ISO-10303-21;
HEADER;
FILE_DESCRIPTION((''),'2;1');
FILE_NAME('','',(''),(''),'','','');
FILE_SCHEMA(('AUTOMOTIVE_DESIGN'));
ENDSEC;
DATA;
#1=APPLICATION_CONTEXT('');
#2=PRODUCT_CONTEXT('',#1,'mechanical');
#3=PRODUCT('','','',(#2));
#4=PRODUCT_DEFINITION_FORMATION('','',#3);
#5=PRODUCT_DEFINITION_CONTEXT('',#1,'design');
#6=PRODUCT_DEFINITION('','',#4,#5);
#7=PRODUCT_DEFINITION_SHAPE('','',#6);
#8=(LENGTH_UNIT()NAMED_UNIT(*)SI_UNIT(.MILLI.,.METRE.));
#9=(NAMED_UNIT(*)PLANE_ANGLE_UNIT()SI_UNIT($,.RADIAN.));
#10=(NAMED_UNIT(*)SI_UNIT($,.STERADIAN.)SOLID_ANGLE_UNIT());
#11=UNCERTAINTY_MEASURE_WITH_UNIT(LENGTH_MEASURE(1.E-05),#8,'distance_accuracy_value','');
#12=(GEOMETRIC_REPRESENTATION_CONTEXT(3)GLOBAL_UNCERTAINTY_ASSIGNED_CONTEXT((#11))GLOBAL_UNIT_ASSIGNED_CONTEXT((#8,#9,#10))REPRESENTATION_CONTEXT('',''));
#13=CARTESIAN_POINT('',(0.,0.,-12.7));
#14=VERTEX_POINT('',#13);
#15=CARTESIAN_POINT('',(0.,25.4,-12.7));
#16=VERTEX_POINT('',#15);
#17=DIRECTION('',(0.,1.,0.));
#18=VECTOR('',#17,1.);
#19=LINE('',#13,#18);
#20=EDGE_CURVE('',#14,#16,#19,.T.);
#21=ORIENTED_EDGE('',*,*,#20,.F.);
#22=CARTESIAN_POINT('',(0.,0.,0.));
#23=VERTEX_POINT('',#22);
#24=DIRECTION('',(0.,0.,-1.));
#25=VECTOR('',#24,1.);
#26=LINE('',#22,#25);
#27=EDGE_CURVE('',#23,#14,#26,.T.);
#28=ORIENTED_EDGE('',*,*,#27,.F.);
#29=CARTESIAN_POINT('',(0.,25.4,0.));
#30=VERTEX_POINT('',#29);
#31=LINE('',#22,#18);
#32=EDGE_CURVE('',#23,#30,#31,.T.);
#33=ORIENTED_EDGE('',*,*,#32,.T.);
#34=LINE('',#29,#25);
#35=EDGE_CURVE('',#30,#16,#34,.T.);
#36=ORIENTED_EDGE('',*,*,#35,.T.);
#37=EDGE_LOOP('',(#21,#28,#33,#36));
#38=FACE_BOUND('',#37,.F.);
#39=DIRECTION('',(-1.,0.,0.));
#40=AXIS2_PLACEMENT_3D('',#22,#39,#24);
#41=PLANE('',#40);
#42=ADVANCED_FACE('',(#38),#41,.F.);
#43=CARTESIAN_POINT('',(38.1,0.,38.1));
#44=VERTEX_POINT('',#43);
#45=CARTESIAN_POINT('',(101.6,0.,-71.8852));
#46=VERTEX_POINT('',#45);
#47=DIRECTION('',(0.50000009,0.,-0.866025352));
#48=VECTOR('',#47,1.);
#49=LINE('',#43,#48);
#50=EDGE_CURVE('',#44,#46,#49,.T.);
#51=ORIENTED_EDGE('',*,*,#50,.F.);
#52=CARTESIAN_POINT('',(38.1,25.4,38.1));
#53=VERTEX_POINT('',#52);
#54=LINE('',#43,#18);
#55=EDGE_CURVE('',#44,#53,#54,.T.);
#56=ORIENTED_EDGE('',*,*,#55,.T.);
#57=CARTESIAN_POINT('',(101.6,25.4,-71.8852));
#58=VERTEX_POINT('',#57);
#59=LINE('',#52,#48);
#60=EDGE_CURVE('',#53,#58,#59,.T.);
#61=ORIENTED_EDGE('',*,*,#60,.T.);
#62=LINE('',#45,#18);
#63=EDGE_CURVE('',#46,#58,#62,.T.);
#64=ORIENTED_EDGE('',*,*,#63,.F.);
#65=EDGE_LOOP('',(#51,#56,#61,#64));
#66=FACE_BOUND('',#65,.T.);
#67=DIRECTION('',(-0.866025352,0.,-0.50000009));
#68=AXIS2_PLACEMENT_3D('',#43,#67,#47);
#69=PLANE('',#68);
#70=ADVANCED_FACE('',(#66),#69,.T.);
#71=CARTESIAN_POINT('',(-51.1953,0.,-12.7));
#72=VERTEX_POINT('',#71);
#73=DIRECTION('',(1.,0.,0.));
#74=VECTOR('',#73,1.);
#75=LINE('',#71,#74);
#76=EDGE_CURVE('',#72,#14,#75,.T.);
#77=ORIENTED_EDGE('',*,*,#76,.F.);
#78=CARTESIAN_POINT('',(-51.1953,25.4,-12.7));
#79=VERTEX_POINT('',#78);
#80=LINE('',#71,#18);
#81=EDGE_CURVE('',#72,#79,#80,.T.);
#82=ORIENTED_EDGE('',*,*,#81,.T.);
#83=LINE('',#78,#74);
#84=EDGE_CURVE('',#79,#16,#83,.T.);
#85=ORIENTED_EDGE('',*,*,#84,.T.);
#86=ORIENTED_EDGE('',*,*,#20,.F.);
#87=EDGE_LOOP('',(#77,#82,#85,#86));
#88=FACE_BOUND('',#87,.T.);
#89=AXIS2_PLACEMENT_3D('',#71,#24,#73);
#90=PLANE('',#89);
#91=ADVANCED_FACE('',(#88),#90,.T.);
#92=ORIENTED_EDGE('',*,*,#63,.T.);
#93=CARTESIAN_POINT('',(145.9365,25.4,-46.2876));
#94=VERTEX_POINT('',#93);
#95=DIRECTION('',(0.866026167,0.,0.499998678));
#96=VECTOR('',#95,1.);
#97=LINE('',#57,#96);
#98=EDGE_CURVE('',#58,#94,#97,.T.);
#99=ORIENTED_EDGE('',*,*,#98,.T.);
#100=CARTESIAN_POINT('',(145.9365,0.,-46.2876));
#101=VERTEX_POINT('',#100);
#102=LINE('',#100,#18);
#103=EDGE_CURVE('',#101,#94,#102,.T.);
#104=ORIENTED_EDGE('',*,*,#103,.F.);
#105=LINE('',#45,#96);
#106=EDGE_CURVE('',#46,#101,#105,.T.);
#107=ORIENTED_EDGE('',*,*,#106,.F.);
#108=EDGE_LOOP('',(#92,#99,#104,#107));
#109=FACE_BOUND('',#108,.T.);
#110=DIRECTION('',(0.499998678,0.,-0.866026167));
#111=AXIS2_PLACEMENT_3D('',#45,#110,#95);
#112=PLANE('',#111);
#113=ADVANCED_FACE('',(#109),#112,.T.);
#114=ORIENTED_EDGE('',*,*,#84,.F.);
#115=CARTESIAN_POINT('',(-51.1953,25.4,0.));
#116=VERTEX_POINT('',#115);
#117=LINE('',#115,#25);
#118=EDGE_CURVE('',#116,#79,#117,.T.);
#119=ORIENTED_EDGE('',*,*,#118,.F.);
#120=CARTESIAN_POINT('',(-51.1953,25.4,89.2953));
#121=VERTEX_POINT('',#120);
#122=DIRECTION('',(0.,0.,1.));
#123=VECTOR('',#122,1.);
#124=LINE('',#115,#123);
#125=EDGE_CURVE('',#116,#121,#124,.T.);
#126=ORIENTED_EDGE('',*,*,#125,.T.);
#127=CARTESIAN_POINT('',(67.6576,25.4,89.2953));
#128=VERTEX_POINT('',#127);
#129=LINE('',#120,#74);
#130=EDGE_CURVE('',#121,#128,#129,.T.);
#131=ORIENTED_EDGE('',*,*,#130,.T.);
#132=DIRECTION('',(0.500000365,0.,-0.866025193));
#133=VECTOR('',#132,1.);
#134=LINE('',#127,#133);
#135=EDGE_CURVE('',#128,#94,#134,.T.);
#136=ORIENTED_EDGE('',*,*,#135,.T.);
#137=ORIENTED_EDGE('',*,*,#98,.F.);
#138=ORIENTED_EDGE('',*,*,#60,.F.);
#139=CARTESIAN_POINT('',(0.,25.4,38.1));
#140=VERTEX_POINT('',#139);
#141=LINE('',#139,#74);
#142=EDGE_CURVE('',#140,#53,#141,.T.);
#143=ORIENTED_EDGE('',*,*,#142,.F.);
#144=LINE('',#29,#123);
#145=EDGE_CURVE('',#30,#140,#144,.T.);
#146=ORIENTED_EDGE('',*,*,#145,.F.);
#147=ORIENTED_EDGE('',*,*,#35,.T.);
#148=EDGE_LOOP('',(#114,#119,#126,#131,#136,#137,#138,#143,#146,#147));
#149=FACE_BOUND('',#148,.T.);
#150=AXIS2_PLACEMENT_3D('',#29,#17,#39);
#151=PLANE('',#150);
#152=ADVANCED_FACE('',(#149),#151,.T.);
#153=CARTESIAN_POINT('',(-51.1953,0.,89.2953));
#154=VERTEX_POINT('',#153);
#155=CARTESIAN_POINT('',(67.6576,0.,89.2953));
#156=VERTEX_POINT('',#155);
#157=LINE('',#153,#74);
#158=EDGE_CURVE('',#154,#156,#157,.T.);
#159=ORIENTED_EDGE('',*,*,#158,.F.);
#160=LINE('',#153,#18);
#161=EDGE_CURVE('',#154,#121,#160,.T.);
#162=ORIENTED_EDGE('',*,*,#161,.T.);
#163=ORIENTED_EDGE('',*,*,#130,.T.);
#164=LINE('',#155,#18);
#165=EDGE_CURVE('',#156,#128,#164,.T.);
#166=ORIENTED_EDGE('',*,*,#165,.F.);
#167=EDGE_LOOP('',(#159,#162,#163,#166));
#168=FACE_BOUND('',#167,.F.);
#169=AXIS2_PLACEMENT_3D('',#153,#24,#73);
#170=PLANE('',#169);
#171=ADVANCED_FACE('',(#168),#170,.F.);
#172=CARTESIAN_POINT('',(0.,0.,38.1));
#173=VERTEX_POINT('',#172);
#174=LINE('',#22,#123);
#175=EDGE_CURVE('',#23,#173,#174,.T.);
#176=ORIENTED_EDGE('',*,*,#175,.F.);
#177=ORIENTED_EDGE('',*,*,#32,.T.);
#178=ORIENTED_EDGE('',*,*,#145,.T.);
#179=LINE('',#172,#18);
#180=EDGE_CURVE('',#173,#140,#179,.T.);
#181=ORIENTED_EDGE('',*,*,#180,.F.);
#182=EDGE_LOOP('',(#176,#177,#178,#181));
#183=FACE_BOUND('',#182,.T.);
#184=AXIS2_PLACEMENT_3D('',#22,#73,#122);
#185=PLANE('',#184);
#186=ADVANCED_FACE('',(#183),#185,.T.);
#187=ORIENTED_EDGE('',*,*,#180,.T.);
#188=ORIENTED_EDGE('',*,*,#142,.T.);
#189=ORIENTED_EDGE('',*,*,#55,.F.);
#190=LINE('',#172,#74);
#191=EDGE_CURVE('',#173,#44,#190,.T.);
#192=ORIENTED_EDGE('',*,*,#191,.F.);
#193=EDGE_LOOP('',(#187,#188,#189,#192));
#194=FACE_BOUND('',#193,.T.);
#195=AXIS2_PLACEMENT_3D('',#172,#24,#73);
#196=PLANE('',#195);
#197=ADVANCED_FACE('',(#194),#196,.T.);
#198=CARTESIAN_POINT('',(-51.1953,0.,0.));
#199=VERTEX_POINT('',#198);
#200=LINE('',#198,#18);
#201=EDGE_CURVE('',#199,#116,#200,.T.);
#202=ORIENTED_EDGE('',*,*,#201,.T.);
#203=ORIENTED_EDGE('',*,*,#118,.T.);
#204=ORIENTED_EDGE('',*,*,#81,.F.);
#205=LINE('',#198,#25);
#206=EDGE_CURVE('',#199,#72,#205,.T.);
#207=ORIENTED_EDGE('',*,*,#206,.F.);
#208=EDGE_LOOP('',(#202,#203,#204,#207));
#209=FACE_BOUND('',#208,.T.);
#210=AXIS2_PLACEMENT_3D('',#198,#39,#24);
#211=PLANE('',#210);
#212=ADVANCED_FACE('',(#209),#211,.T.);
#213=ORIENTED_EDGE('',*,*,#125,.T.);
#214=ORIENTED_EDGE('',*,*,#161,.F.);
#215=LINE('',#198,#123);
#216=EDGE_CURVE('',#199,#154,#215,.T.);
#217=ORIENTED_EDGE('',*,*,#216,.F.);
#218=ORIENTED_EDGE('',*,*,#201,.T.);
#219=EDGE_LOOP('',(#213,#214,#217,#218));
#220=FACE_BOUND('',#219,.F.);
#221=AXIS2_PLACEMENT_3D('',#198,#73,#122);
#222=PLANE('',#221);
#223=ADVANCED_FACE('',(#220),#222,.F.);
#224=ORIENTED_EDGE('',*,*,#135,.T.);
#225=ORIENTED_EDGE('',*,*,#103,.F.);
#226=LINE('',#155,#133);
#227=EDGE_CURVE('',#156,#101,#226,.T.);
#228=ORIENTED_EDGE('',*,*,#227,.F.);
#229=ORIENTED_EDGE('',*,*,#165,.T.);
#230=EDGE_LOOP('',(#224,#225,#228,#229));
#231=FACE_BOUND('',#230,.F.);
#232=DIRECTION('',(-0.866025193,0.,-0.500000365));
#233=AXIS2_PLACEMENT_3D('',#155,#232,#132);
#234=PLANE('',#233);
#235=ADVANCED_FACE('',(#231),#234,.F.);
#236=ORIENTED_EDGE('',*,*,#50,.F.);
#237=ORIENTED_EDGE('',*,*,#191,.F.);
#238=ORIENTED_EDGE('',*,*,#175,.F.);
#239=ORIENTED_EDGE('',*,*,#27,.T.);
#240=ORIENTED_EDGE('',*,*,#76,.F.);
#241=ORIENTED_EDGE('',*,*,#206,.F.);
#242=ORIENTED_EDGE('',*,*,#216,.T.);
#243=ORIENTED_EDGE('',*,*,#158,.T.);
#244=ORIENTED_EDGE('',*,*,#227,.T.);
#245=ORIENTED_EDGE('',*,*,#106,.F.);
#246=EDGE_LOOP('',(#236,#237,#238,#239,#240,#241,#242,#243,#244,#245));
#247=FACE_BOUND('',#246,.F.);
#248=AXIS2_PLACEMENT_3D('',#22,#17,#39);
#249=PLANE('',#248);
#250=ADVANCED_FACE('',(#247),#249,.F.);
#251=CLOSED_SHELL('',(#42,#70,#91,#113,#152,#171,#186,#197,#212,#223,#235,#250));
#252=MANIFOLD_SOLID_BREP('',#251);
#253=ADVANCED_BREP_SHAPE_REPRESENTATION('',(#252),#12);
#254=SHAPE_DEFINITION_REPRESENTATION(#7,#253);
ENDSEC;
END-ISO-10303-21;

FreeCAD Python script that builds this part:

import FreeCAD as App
import Part
import Sketcher

V = App.Vector
Q = App.Units.Quantity

doc = App.newDocument("Part")
body = doc.addObject("PartDesign::Body", "Body")

# Sketch on XZ plane
sketch1 = body.newObject("Sketcher::SketchObject", "Sketch")
sketch1.AttachmentSupport = (doc.getObject("XZ_Plane"), [""])
sketch1.MapMode = "FlatFace"
sketch1.addGeometry([
    Part.LineSegment(V(0, 38.1, 0), V(0, -12.7, 0)),  # 0
    Part.LineSegment(V(0, -12.7, 0), V(-51.1953, -12.7, 0)),  # 1
    Part.LineSegment(V(-51.1953, -12.7, 0), V(-51.1953, 89.2953, 0)),  # 2
    Part.LineSegment(V(-51.1953, 89.2953, 0), V(67.6576, 89.2953, 0)),  # 3
    Part.LineSegment(V(67.6576, 89.2953, 0), V(145.9365, -46.2876, 0)),  # 4
    Part.LineSegment(V(145.9365, -46.2876, 0), V(101.6, -71.8852, 0)),  # 5
    Part.LineSegment(V(101.6, -71.8852, 0), V(38.1, 38.1, 0)),  # 6
    Part.LineSegment(V(38.1, 38.1, 0), V(0, 38.1, 0)),  # 7
], False)
sketch1.addConstraint([
    Sketcher.Constraint("Coincident", 0, 2, 1, 1),
    Sketcher.Constraint("Coincident", 1, 2, 2, 1),
    Sketcher.Constraint("Coincident", 2, 2, 3, 1),
    Sketcher.Constraint("Coincident", 3, 2, 4, 1),
    Sketcher.Constraint("Coincident", 4, 2, 5, 1),
    Sketcher.Constraint("Coincident", 5, 2, 6, 1),
    Sketcher.Constraint("Coincident", 6, 2, 7, 1),
    Sketcher.Constraint("Coincident", 7, 2, 0, 1),
    Sketcher.Constraint("Vertical", 0),
    Sketcher.Constraint("Horizontal", 1),
    Sketcher.Constraint("Vertical", 2),
    Sketcher.Constraint("Horizontal", 3),
    Sketcher.Constraint("Horizontal", 7),
    Sketcher.Constraint("PointOnObject", 0, 2, -2),
    Sketcher.Constraint("Perpendicular", 4, 5),
    Sketcher.Constraint("Perpendicular", 5, 6),
    Sketcher.Constraint("Distance", 6, Q("5 in")),
    Sketcher.Constraint("DistanceX", 7, 2, 7, 1, Q("1.5 in")),
    Sketcher.Constraint("Angle", 6, Q("120 deg")),
    Sketcher.Constraint("DistanceY", 0, 2, -1, 1, Q("0.5 in")),
    Sketcher.Constraint("DistanceY", -1, 1, 6, 2, Q("1.5 in")),
    Sketcher.Constraint("DistanceX", 1, 2, 1, 1, Q("51.1953 mm")),
    Sketcher.Constraint("Distance", 5, Q("51.1953 mm")),
    Sketcher.Constraint("DistanceY", 6, 2, 3, 2, Q("51.1953 mm")),
])
pad1 = body.newObject("PartDesign::Pad", "Pad")
pad1.Profile = sketch1
pad1.Length = Q("1 in")
pad1.Reversed = True

doc.recompute()
